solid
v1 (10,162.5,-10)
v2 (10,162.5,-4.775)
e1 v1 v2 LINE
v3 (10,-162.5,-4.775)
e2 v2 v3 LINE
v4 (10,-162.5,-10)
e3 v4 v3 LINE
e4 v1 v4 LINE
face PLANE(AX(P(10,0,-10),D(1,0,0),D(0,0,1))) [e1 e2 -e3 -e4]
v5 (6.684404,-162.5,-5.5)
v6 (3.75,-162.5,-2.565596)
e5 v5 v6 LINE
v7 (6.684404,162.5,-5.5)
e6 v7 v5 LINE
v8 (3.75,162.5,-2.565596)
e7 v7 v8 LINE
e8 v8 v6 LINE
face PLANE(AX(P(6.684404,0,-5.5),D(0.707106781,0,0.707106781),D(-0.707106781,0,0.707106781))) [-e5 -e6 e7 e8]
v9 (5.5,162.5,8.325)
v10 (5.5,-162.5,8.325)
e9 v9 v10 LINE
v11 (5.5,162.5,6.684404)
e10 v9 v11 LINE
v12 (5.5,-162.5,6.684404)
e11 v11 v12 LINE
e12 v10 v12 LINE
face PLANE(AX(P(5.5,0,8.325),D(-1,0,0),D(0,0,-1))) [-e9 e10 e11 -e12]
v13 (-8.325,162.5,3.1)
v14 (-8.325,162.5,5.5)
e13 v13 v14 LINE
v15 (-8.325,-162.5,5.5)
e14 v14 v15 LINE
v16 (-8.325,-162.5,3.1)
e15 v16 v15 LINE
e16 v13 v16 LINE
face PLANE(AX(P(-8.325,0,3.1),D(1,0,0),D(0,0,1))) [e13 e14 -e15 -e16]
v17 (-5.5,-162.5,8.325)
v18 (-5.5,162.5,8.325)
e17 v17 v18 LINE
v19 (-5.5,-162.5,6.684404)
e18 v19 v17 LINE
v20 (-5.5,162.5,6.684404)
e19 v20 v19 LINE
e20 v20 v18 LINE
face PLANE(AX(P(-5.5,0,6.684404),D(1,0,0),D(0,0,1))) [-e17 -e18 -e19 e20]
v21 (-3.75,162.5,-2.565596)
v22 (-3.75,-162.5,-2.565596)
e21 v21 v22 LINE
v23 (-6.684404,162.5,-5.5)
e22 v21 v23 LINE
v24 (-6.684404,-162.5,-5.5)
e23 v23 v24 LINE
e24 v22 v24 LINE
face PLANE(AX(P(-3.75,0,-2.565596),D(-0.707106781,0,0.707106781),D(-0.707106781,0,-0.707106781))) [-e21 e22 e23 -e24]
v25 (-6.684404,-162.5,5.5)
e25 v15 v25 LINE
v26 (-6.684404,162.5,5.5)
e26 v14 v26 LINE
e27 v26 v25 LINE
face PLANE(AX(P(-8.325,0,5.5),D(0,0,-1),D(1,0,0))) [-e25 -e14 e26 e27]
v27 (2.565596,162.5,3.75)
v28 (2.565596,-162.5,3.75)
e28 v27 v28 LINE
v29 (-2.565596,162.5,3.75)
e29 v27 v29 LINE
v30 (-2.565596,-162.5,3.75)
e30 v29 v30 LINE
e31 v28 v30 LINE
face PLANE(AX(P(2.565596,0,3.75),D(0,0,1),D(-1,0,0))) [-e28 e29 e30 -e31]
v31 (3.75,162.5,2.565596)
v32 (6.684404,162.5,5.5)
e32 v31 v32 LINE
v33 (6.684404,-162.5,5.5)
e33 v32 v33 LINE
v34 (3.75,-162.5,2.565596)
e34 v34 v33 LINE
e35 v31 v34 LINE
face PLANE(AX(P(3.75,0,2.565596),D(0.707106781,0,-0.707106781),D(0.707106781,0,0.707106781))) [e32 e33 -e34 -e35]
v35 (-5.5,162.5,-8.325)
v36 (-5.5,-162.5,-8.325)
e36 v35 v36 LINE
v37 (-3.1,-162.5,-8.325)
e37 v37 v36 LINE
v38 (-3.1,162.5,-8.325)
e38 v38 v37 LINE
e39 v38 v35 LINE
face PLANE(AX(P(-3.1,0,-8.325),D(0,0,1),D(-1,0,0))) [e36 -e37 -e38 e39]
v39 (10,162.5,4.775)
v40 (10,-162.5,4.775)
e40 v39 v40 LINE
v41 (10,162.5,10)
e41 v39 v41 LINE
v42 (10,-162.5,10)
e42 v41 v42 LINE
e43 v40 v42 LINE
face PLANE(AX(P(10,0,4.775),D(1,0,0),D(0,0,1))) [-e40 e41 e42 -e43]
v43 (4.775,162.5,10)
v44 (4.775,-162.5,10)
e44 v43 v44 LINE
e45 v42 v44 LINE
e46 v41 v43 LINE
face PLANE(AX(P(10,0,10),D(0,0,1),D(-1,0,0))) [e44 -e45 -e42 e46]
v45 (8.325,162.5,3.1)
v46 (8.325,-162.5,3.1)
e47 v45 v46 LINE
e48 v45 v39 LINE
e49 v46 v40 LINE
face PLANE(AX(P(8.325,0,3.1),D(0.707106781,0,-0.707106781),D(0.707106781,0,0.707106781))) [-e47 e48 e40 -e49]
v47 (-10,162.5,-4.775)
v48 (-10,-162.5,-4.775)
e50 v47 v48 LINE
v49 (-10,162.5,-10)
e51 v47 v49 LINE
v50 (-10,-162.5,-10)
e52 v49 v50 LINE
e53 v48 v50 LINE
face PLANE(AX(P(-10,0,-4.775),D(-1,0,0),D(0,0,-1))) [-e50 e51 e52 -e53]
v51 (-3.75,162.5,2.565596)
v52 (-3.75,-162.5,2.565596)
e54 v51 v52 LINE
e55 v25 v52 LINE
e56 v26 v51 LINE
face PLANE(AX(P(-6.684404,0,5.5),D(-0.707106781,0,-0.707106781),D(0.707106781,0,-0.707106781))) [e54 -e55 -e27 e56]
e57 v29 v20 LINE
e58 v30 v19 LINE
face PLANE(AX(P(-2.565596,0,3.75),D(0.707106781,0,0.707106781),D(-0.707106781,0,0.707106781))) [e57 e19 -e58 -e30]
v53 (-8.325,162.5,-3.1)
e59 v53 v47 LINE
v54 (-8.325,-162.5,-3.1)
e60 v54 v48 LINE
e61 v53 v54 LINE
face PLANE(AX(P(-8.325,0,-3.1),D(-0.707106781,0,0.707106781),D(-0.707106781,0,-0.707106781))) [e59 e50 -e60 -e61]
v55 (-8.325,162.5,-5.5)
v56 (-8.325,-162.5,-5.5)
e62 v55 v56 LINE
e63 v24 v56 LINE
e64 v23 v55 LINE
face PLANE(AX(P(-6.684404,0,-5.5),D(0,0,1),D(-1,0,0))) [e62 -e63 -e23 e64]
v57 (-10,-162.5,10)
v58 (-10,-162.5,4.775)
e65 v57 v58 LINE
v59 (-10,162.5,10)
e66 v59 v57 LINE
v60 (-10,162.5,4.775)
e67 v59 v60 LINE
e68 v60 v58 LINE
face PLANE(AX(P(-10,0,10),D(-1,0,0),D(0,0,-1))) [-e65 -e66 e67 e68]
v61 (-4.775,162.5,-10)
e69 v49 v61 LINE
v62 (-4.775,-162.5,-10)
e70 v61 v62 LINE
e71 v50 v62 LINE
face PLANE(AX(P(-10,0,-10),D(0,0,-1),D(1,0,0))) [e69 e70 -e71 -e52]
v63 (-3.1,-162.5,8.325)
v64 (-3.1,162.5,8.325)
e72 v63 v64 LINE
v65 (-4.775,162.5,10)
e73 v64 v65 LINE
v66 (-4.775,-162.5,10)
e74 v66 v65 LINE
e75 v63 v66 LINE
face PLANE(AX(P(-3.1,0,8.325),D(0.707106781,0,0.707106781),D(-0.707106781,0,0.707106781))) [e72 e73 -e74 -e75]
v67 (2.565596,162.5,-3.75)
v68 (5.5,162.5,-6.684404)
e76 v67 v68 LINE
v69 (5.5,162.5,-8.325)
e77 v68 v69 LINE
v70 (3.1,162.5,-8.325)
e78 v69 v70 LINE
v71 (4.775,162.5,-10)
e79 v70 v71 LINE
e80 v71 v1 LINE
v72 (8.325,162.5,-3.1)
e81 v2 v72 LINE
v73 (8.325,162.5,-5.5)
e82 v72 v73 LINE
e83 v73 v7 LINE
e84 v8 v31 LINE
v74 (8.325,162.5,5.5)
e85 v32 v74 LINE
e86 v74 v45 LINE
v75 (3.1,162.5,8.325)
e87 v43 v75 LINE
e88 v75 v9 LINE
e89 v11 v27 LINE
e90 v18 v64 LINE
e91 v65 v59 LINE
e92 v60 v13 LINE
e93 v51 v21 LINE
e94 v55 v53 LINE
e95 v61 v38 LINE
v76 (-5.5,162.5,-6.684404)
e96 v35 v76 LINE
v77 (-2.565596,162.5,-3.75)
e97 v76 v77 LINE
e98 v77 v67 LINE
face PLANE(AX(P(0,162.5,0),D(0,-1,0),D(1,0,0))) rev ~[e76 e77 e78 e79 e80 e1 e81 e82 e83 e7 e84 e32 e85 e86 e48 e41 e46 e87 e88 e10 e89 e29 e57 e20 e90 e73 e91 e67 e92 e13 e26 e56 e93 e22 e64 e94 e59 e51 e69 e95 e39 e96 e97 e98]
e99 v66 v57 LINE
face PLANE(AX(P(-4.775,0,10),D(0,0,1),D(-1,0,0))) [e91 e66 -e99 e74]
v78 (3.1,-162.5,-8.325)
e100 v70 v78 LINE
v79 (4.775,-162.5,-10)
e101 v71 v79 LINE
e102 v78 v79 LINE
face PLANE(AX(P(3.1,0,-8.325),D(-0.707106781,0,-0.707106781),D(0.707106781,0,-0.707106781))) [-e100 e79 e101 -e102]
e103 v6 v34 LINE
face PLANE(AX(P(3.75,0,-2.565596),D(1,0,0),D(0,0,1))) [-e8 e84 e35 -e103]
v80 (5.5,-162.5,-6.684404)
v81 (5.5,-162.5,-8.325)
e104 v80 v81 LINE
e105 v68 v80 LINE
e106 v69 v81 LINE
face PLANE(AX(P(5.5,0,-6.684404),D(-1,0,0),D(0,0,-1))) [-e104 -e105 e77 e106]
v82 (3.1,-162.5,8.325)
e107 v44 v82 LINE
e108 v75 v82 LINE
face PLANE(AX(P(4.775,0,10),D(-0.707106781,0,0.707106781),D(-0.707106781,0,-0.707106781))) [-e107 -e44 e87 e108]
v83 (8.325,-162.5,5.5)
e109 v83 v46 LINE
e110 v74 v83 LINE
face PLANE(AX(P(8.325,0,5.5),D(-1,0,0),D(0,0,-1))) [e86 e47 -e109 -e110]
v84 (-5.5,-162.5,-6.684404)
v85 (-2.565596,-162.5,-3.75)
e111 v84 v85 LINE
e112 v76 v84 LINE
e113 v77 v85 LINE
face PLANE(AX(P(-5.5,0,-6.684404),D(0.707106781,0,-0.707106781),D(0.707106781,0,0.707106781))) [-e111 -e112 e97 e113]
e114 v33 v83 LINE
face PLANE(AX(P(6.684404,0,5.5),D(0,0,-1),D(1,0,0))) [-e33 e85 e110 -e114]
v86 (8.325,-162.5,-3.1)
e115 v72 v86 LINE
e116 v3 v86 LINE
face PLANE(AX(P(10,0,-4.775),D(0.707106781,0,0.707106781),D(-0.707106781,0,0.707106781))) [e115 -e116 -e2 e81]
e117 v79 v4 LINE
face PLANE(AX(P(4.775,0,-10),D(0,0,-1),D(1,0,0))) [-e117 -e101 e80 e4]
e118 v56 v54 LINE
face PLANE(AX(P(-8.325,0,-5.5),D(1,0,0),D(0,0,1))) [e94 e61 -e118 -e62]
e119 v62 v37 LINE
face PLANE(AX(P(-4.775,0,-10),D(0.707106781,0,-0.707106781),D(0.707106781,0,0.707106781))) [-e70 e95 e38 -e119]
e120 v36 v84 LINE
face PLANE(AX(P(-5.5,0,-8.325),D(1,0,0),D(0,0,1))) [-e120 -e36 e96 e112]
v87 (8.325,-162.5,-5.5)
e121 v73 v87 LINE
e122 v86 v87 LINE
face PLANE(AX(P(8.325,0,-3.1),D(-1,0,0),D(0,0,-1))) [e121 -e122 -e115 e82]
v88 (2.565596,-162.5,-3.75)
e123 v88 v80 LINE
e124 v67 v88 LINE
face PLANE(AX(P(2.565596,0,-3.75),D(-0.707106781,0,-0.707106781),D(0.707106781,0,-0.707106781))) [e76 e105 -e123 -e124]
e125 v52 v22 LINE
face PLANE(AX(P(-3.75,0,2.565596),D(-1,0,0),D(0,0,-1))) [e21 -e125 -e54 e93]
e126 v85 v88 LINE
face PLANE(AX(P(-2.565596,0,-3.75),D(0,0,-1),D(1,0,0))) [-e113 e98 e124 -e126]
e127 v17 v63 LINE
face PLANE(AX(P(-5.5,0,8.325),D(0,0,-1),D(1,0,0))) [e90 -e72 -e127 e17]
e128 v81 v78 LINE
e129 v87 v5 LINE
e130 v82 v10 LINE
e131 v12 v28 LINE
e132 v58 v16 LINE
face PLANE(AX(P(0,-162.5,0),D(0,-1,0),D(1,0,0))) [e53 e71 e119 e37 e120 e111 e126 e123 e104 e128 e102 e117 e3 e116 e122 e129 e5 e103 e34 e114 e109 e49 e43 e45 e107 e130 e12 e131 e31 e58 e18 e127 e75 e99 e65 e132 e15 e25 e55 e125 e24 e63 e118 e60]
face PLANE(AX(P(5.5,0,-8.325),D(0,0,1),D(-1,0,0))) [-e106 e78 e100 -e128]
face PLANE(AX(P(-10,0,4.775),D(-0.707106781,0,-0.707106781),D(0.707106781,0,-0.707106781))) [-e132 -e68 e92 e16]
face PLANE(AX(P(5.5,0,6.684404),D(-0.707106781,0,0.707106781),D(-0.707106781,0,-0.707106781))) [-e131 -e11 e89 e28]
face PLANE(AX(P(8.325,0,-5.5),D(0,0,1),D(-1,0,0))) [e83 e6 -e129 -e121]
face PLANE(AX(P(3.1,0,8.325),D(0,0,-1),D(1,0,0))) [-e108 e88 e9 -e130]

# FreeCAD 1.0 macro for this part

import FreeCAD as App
import Part
import Sketcher
Q = App.Units.Quantity


def add_polygon(sketch, points):
    """Adds a closed chain of lines whose ends are joined by coincident constraints."""
    first, n = sketch.GeometryCount, len(points)
    for a, b in zip(points, points[1:] + points[:1]):
        sketch.addGeometry(Part.LineSegment(App.Vector(*a, 0), App.Vector(*b, 0)), False)
    for i in range(n):
        sketch.addConstraint(Sketcher.Constraint("Coincident", first + i, 2, first + (i + 1) % n, 1))

doc = App.newDocument("Part")
body = doc.addObject("PartDesign::Body", "Body")

sketch1 = doc.addObject("Sketcher::SketchObject", "Sketch")
body.addObject(sketch1)
sketch1.AttachmentSupport = (doc.XZ_Plane, [""])
sketch1.MapMode = "FlatFace"
add_polygon(sketch1, [(-4.8, 10), (-10, 10), (-10, 4.8), (-8.3, 3.1), (-8.3, 5.5), (-6.7, 5.5), (-3.8, 2.6), (-3.8, -2.6), (-6.7, -5.5), (-8.3, -5.5), (-8.3, -3.1), (-10, -4.8), (-10, -10), (-4.8, -10), (-3.1, -8.3), (-5.5, -8.3), (-5.5, -6.7), (-2.6, -3.8), (2.6, -3.8), (5.5, -6.7), (5.5, -8.3), (3.1, -8.3), (4.8, -10), (10, -10), (10, -4.8), (8.3, -3.1), (8.3, -5.5), (6.7, -5.5), (3.8, -2.6), (3.8, 2.6), (6.7, 5.5), (8.3, 5.5), (8.3, 3.1), (10, 4.8), (10, 10), (4.8, 10), (3.1, 8.3), (5.5, 8.3), (5.5, 6.7), (2.6, 3.8), (-2.6, 3.8), (-5.5, 6.7), (-5.5, 8.3), (-3.1, 8.3)])
sketch1.addConstraint([
    Sketcher.Constraint("Horizontal", 0),
    Sketcher.Constraint("Vertical", 1),
    Sketcher.Constraint("Vertical", 3),
    Sketcher.Constraint("Horizontal", 4),
    Sketcher.Constraint("Vertical", 6),
    Sketcher.Constraint("Horizontal", 8),
    Sketcher.Constraint("Vertical", 9),
    Sketcher.Constraint("Vertical", 11),
    Sketcher.Constraint("Horizontal", 12),
    Sketcher.Constraint("Horizontal", 14),
    Sketcher.Constraint("Vertical", 15),
    Sketcher.Constraint("Horizontal", 17),
    Sketcher.Constraint("Vertical", 19),
    Sketcher.Constraint("Horizontal", 20),
    Sketcher.Constraint("Horizontal", 22),
    Sketcher.Constraint("Vertical", 23),
    Sketcher.Constraint("Vertical", 25),
    Sketcher.Constraint("Horizontal", 26),
    Sketcher.Constraint("Vertical", 28),
    Sketcher.Constraint("Horizontal", 30),
    Sketcher.Constraint("Vertical", 31),
    Sketcher.Constraint("Vertical", 33),
    Sketcher.Constraint("Horizontal", 34),
    Sketcher.Constraint("Horizontal", 36),
    Sketcher.Constraint("Vertical", 37),
    Sketcher.Constraint("Horizontal", 39),
    Sketcher.Constraint("Vertical", 41),
    Sketcher.Constraint("Horizontal", 42),
    Sketcher.Constraint("Symmetric", 0, 2, 22, 2, -1, 1),
    Sketcher.Constraint("Symmetric", 2, 2, 24, 2, -1, 1),
    Sketcher.Constraint("Symmetric", 4, 2, 26, 2, -1, 1),
    Sketcher.Constraint("Symmetric", 5, 2, 27, 2, -1, 1),
    Sketcher.Constraint("Symmetric", 7, 2, 29, 2, -1, 1),
    Sketcher.Constraint("Symmetric", 9, 2, 31, 2, -1, 1),
    Sketcher.Constraint("Symmetric", 10, 2, 32, 2, -1, 1),
    Sketcher.Constraint("Symmetric", 12, 2, 34, 2, -1, 1),
    Sketcher.Constraint("Symmetric", 13, 2, 35, 2, -1, 1),
    Sketcher.Constraint("Symmetric", 15, 2, 37, 2, -1, 1),
    Sketcher.Constraint("Symmetric", 16, 2, 38, 2, -1, 1),
    Sketcher.Constraint("Symmetric", 18, 2, 40, 2, -1, 1),
    Sketcher.Constraint("Symmetric", 20, 2, 42, 2, -1, 1),
    Sketcher.Constraint("Symmetric", 15, 2, 18, 2, -2),
    Sketcher.Constraint("Symmetric", 13, 2, 20, 2, -2),
    Sketcher.Constraint("Symmetric", 12, 2, 21, 2, -2),
    Sketcher.Constraint("Symmetric", 10, 2, 23, 2, -2),
    Sketcher.Constraint("Symmetric", 9, 2, 24, 2, -2),
    Sketcher.Constraint("Symmetric", 7, 2, 26, 2, -2),
    Sketcher.Constraint("Parallel", 2, 5),
    Sketcher.Constraint("Perpendicular", 5, 7),
    Sketcher.Constraint("Parallel", 7, 10),
    Sketcher.Constraint("Parallel", 10, 13),
    Sketcher.Constraint("Parallel", 13, 16),
    Sketcher.Constraint("Perpendicular", 16, 18),
    Sketcher.Constraint("Parallel", 18, 21),
    Sketcher.Constraint("Perpendicular", 27, 29),
    Sketcher.Constraint("Perpendicular", 38, 40),
    Sketcher.Constraint("Parallel", 40, 43),
    Sketcher.Constraint("Equal", 34, 1),
    Sketcher.Constraint("Equal", 42, 3),
    Sketcher.Constraint("Equal", 39, 6),
    Sketcher.Constraint("Equal", 30, 15),
    Sketcher.Constraint("Equal", 10, 13),
    Sketcher.Constraint("Equal", 7, 16),
    Sketcher.Constraint("DistanceX", 14, 2, 14, 1, Q("2.4 mm")),
    Sketcher.Constraint("DistanceX", 0, 2, -1, 1, Q("10 mm")),
    Sketcher.Constraint("DistanceY", 7, 2, 4, 2, Q("11 mm")),
    Sketcher.Constraint("DistanceX", 5, 2, 28, 2, Q("7.5 mm")),
    Sketcher.Constraint("DistanceX", 0, 2, 0, 1, Q("5.225 mm")),
    Sketcher.Constraint("DistanceX", 4, 1, 4, 2, Q("1.640596 mm")),
])
pad1 = doc.addObject("PartDesign::Pad", "Pad")
body.addObject(pad1)
pad1.Profile = sketch1
pad1.Length = 325
pad1.Midplane = True

doc.recompute()
